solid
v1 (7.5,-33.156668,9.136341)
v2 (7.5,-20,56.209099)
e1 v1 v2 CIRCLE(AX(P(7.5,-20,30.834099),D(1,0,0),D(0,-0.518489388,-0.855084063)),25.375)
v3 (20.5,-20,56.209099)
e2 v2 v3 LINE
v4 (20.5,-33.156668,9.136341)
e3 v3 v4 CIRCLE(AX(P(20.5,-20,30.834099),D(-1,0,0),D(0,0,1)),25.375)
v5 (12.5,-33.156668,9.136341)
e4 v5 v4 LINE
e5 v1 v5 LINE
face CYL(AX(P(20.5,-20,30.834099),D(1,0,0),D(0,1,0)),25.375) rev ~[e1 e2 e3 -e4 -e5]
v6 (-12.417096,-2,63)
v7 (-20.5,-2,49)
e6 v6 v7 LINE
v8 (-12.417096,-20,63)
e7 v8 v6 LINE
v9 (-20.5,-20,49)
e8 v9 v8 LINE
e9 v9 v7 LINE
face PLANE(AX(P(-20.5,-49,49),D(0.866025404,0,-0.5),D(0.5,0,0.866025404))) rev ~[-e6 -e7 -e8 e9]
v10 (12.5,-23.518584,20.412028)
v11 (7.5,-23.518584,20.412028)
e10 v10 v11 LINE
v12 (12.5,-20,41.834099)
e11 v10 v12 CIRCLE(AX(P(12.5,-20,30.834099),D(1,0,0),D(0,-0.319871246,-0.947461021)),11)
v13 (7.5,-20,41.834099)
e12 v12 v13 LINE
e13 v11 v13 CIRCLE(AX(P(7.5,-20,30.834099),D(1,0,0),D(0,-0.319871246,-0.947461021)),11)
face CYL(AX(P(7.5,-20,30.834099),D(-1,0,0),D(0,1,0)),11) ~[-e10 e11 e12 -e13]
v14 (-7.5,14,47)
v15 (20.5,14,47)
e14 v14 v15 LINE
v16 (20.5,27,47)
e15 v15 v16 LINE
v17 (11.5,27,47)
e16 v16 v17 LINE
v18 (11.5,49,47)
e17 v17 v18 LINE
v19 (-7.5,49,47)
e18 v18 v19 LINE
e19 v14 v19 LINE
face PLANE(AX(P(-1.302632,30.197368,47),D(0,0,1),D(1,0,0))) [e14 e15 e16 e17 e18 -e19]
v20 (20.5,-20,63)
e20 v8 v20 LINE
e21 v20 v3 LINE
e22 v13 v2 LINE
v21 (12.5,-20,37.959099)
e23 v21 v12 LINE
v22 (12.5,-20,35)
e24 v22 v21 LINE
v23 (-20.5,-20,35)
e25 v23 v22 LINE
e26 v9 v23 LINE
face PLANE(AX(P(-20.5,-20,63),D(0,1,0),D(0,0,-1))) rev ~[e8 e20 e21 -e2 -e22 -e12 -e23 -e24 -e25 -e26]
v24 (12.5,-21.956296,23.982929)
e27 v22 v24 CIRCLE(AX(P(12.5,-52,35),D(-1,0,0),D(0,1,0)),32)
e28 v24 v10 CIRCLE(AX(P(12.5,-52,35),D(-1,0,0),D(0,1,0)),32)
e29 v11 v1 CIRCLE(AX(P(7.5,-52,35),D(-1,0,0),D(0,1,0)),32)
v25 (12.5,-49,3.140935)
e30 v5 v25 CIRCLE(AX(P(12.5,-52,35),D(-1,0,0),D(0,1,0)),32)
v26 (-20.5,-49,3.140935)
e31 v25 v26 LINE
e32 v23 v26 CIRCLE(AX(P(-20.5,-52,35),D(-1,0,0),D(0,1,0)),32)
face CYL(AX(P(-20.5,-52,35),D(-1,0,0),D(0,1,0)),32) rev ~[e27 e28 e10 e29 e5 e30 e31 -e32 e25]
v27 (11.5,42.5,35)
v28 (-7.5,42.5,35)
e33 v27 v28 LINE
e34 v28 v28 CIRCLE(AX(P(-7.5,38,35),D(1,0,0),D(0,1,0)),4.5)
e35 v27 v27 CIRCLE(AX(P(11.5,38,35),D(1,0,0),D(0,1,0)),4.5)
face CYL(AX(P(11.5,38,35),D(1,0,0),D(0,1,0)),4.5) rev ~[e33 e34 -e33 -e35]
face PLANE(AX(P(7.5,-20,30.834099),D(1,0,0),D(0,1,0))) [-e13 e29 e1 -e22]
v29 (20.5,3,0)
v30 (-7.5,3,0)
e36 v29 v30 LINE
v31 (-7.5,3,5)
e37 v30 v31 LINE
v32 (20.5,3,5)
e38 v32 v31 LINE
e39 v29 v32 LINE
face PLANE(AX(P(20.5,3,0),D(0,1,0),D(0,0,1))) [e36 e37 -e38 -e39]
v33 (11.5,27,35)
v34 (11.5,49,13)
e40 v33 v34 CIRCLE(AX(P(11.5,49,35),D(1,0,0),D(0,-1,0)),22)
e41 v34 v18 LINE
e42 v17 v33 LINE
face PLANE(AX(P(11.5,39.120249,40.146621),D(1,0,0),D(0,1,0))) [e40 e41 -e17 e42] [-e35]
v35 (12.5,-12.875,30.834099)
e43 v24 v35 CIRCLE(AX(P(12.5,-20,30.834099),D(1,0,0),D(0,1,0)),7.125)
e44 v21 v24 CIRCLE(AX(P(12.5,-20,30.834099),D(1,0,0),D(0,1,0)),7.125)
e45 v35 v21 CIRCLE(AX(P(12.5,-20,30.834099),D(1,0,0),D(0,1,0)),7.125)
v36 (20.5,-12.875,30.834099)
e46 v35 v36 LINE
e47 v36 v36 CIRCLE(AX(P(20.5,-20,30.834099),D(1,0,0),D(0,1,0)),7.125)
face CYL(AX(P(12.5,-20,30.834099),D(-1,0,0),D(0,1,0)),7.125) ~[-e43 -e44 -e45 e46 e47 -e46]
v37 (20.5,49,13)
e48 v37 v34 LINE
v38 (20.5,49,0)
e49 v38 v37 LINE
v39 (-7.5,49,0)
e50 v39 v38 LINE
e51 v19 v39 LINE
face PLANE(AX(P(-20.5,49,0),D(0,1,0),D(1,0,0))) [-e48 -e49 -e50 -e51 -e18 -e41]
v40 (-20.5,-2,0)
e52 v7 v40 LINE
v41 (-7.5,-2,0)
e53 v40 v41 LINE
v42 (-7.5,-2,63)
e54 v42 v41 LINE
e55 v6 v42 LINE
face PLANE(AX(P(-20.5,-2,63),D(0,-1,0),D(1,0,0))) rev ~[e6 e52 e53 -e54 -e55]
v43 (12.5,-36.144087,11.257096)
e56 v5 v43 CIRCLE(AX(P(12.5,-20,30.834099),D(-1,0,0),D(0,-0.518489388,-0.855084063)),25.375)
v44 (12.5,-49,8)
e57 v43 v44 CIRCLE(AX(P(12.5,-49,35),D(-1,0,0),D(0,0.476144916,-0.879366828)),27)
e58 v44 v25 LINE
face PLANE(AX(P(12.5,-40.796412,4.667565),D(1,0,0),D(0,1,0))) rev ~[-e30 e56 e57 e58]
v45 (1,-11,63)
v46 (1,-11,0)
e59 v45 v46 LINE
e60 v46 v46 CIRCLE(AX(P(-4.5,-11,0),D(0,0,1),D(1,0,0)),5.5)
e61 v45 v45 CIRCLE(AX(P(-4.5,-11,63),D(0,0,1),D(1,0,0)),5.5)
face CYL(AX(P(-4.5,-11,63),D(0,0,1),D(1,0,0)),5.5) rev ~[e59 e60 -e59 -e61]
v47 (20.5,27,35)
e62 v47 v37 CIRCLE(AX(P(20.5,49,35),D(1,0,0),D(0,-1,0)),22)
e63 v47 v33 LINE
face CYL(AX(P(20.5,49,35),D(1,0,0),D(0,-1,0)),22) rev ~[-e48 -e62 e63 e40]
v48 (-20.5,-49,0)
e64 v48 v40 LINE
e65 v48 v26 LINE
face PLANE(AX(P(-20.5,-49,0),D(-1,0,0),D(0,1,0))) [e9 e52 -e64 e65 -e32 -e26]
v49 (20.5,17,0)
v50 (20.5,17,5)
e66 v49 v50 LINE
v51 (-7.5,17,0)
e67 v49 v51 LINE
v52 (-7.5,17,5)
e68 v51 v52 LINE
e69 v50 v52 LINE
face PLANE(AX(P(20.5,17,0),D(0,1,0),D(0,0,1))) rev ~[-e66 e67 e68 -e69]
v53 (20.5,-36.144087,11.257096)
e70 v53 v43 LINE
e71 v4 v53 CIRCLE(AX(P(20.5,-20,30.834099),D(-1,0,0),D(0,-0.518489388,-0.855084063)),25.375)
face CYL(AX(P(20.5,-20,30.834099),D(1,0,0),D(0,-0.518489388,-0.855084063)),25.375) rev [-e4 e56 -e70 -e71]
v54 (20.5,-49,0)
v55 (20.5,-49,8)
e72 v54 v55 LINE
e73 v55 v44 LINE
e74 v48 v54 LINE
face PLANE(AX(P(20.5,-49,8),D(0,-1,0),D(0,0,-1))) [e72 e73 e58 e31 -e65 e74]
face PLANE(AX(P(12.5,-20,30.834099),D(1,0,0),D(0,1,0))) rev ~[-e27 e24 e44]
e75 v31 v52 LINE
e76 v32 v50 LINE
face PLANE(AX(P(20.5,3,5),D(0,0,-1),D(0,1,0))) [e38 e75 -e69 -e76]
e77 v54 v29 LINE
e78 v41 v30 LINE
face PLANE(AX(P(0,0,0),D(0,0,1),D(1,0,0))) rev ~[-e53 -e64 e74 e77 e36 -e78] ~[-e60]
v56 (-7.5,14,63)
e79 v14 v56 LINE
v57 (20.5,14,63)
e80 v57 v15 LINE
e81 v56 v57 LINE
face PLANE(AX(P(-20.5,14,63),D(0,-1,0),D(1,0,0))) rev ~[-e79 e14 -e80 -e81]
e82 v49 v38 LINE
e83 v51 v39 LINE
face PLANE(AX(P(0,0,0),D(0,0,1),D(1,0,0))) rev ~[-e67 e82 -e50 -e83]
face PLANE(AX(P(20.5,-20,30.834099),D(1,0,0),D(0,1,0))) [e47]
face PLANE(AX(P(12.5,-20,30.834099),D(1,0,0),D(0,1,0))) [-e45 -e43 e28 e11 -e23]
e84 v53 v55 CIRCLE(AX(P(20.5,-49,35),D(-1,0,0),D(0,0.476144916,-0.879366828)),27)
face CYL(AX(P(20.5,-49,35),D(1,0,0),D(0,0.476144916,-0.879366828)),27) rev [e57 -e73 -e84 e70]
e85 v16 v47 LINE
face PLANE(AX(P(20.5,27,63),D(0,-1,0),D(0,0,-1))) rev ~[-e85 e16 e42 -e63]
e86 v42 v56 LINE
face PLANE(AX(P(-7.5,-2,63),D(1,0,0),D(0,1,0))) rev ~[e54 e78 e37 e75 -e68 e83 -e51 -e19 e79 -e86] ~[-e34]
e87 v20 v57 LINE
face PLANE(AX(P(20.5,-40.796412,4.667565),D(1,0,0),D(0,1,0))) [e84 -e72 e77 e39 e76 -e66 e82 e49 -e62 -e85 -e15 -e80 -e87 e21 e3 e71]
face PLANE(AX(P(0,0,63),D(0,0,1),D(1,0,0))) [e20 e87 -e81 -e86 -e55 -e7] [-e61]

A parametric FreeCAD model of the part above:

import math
import FreeCAD as App
import Part
import Sketcher
Q = App.Units.Quantity


def add_polygon(sketch, points):
    """Adds a closed chain of lines whose ends are joined by coincident constraints."""
    first, n = sketch.GeometryCount, len(points)
    for a, b in zip(points, points[1:] + points[:1]):
        sketch.addGeometry(Part.LineSegment(App.Vector(*a, 0), App.Vector(*b, 0)), False)
    for i in range(n):
        sketch.addConstraint(Sketcher.Constraint("Coincident", first + i, 2, first + (i + 1) % n, 1))

doc = App.newDocument("Part")
body = doc.addObject("PartDesign::Body", "Body")

# Sketch on XY plane
sketch1 = doc.addObject("Sketcher::SketchObject", "Sketch")
body.addObject(sketch1)
sketch1.AttachmentSupport = (doc.XY_Plane, [""])
sketch1.MapMode = "FlatFace"
add_polygon(sketch1, [(-20, 49), (-20, -49), (20, -49), (20, 49)])  # lines 0-3
sketch1.addConstraint(Sketcher.Constraint("Vertical", 0))
sketch1.addConstraint(Sketcher.Constraint("Horizontal", 1))
sketch1.addConstraint(Sketcher.Constraint("Vertical", 2))
sketch1.addConstraint(Sketcher.Constraint("Horizontal", 3))
sketch1.addConstraint(Sketcher.Constraint("Symmetric", 0, 2, 2, 2, -1, 1))
sketch1.addConstraint(Sketcher.Constraint("DistanceX", 1, 1, 1, 2, Q("41 mm")))
sketch1.addConstraint(Sketcher.Constraint("DistanceY", 0, 2, 0, 1, Q("98 mm")))
pad1 = doc.addObject("PartDesign::Pad", "Pad")
body.addObject(pad1)
pad1.Profile = sketch1
pad1.Length = 63

# Sketch on YZ plane
sketch2 = doc.addObject("Sketcher::SketchObject", "Sketch001")
body.addObject(sketch2)
sketch2.AttachmentSupport = (doc.YZ_Plane, [""])
sketch2.MapMode = "FlatFace"
sketch2.AttachmentOffset = App.Placement(App.Vector(0, 0, 20.5), App.Rotation())
sketch2.addGeometry(Part.LineSegment(App.Vector(27, 63, 0), App.Vector(27, 35, 0)), False)
sketch2.addGeometry(Part.ArcOfCircle(Part.Circle(App.Vector(49, 35, 0), App.Vector(0, 0, 1), 22), math.radians(180), math.radians(270)), False)
sketch2.addGeometry(Part.LineSegment(App.Vector(49, 13, 0), App.Vector(49, 63, 0)), False)
sketch2.addGeometry(Part.LineSegment(App.Vector(49, 63, 0), App.Vector(27, 63, 0)), False)
sketch2.addConstraint(Sketcher.Constraint("Tangent", 0, 2, 1, 1))
sketch2.addConstraint(Sketcher.Constraint("Coincident", 1, 2, 2, 1))
sketch2.addConstraint(Sketcher.Constraint("Coincident", 2, 2, 3, 1))
sketch2.addConstraint(Sketcher.Constraint("Coincident", 3, 2, 0, 1))
sketch2.addConstraint(Sketcher.Constraint("Vertical", 0))
sketch2.addConstraint(Sketcher.Constraint("Vertical", 2))
sketch2.addConstraint(Sketcher.Constraint("Horizontal", 3))
sketch2.addConstraint(Sketcher.Constraint("Radius", 1, Q("22 mm")))
sketch2.addConstraint(Sketcher.Constraint("DistanceX", 3, 2, 3, 1, Q("22 mm")))
sketch2.addConstraint(Sketcher.Constraint("DistanceY", 0, 2, 0, 1, Q("28 mm")))
sketch2.addConstraint(Sketcher.Constraint("DistanceX", -1, 1, 1, 3, Q("49 mm")))
sketch2.addConstraint(Sketcher.Constraint("DistanceY", -1, 1, 1, 3, Q("35 mm")))
pocket1 = doc.addObject("PartDesign::Pocket", "Pocket")
body.addObject(pocket1)
pocket1.Profile = sketch2
pocket1.Length = 9

# Sketch on XY plane
sketch3 = doc.addObject("Sketcher::SketchObject", "Sketch002")
body.addObject(sketch3)
sketch3.AttachmentSupport = (doc.XY_Plane, [""])
sketch3.MapMode = "FlatFace"
sketch3.AttachmentOffset = App.Placement(App.Vector(0, 0, 63), App.Rotation())
add_polygon(sketch3, [(12, 49), (-20, 49), (-20, 14), (20, 14), (20, 27), (12, 27)])  # lines 0-5
sketch3.addConstraint(Sketcher.Constraint("Horizontal", 0))
sketch3.addConstraint(Sketcher.Constraint("Vertical", 1))
sketch3.addConstraint(Sketcher.Constraint("Horizontal", 2))
sketch3.addConstraint(Sketcher.Constraint("Vertical", 3))
sketch3.addConstraint(Sketcher.Constraint("Horizontal", 4))
sketch3.addConstraint(Sketcher.Constraint("Vertical", 5))
sketch3.addConstraint(Sketcher.Constraint("DistanceX", 0, 2, 0, 1, Q("32 mm")))
sketch3.addConstraint(Sketcher.Constraint("DistanceX", 2, 1, 2, 2, Q("41 mm")))
sketch3.addConstraint(Sketcher.Constraint("DistanceY", 1, 2, 1, 1, Q("35 mm")))
sketch3.addConstraint(Sketcher.Constraint("DistanceY", 3, 1, 3, 2, Q("13 mm")))
sketch3.addConstraint(Sketcher.Constraint("DistanceY", -1, 1, 0, 2, Q("49 mm")))
sketch3.addConstraint(Sketcher.Constraint("DistanceX", 0, 2, -1, 1, Q("20.5 mm")))
pocket2 = doc.addObject("PartDesign::Pocket", "Pocket001")
body.addObject(pocket2)
pocket2.Profile = sketch3
pocket2.Length = 16

# Sketch on XZ plane
sketch4 = doc.addObject("Sketcher::SketchObject", "Sketch003")
body.addObject(sketch4)
sketch4.AttachmentSupport = (doc.XZ_Plane, [""])
sketch4.MapMode = "FlatFace"
sketch4.AttachmentOffset = App.Placement(App.Vector(0, 0, 49), App.Rotation())
add_polygon(sketch4, [(-20, 63), (-20, 49), (-12, 63)])  # lines 0-2
sketch4.addConstraint(Sketcher.Constraint("Vertical", 0))
sketch4.addConstraint(Sketcher.Constraint("Horizontal", 2))
sketch4.addConstraint(Sketcher.Constraint("DistanceY", 0, 2, 0, 1, Q("14 mm")))
sketch4.addConstraint(Sketcher.Constraint("Angle", 1, Q("60 deg")))
sketch4.addConstraint(Sketcher.Constraint("DistanceY", -1, 1, 0, 2, Q("49 mm")))
sketch4.addConstraint(Sketcher.Constraint("DistanceX", 0, 2, -1, 1, Q("20.5 mm")))
pocket3 = doc.addObject("PartDesign::Pocket", "Pocket002")
body.addObject(pocket3)
pocket3.Profile = sketch4
pocket3.Type = "ThroughAll"

# Sketch on XY plane
sketch5 = doc.addObject("Sketcher::SketchObject", "Sketch004")
body.addObject(sketch5)
sketch5.AttachmentSupport = (doc.XY_Plane, [""])
sketch5.MapMode = "FlatFace"
sketch5.AttachmentOffset = App.Placement(App.Vector(0, 0, 63), App.Rotation())
add_polygon(sketch5, [(-20, 49), (-20, -2), (-8, -2), (-8, 49)])  # lines 0-3
sketch5.addConstraint(Sketcher.Constraint("Vertical", 0))
sketch5.addConstraint(Sketcher.Constraint("Horizontal", 1))
sketch5.addConstraint(Sketcher.Constraint("Vertical", 2))
sketch5.addConstraint(Sketcher.Constraint("Horizontal", 3))
sketch5.addConstraint(Sketcher.Constraint("DistanceX", 1, 1, 1, 2, Q("13 mm")))
sketch5.addConstraint(Sketcher.Constraint("DistanceY", 0, 2, 0, 1, Q("51 mm")))
sketch5.addConstraint(Sketcher.Constraint("DistanceY", 0, 2, -1, 1, Q("2 mm")))
sketch5.addConstraint(Sketcher.Constraint("DistanceX", 0, 2, -1, 1, Q("20.5 mm")))
pocket4 = doc.addObject("PartDesign::Pocket", "Pocket003")
body.addObject(pocket4)
pocket4.Profile = sketch5
pocket4.Type = "ThroughAll"

# Sketch on YZ plane
sketch6 = doc.addObject("Sketcher::SketchObject", "Sketch005")
body.addObject(sketch6)
sketch6.AttachmentSupport = (doc.YZ_Plane, [""])
sketch6.MapMode = "FlatFace"
sketch6.AttachmentOffset = App.Placement(App.Vector(0, 0, 20.5), App.Rotation())
sketch6.addGeometry(Part.Circle(App.Vector(-20, 31, 0), App.Vector(0, 0, 1), 25), False)
sketch6.addConstraint(Sketcher.Constraint("Diameter", 0, Q("50.75 mm")))
sketch6.addConstraint(Sketcher.Constraint("DistanceX", 0, 3, -1, 1, Q("20 mm")))
sketch6.addConstraint(Sketcher.Constraint("DistanceY", -1, 1, 0, 3, Q("30.834099 mm")))
pocket5 = doc.addObject("PartDesign::Pocket", "Pocket004")
body.addObject(pocket5)
pocket5.Profile = sketch6
pocket5.Length = 13

# Sketch on YZ plane
sketch7 = doc.addObject("Sketcher::SketchObject", "Sketch006")
body.addObject(sketch7)
sketch7.AttachmentSupport = (doc.YZ_Plane, [""])
sketch7.MapMode = "FlatFace"
sketch7.AttachmentOffset = App.Placement(App.Vector(0, 0, 7.5), App.Rotation())
sketch7.addGeometry(Part.Circle(App.Vector(-20, 31, 0), App.Vector(0, 0, 1), 11), False)
sketch7.addConstraint(Sketcher.Constraint("Diameter", 0, Q("22 mm")))
sketch7.addConstraint(Sketcher.Constraint("DistanceX", 0, 3, -1, 1, Q("20 mm")))
sketch7.addConstraint(Sketcher.Constraint("DistanceY", -1, 1, 0, 3, Q("30.834099 mm")))
pad2 = doc.addObject("PartDesign::Pad", "Pad001")
body.addObject(pad2)
pad2.Profile = sketch7
pad2.Length = 5

# Sketch on YZ plane
sketch8 = doc.addObject("Sketcher::SketchObject", "Sketch007")
body.addObject(sketch8)
sketch8.AttachmentSupport = (doc.YZ_Plane, [""])
sketch8.MapMode = "FlatFace"
sketch8.AttachmentOffset = App.Placement(App.Vector(0, 0, -20.5), App.Rotation())
sketch8.addGeometry(Part.LineSegment(App.Vector(-20, 63, 0), App.Vector(-20, 35, 0)), False)
sketch8.addGeometry(Part.ArcOfCircle(Part.Circle(App.Vector(-52, 35, 0), App.Vector(0, 0, 1), 32), math.radians(119), math.radians(360)), False)
sketch8.addGeometry(Part.LineSegment(App.Vector(-67, 63, 0), App.Vector(-20, 63, 0)), False)
sketch8.addConstraint(Sketcher.Constraint("Tangent", 0, 2, 1, 2))
sketch8.addConstraint(Sketcher.Constraint("Coincident", 1, 1, 2, 1))
sketch8.addConstraint(Sketcher.Constraint("Coincident", 2, 2, 0, 1))
sketch8.addConstraint(Sketcher.Constraint("Vertical", 0))
sketch8.addConstraint(Sketcher.Constraint("Horizontal", 2))
sketch8.addConstraint(Sketcher.Constraint("Radius", 1, Q("32 mm")))
sketch8.addConstraint(Sketcher.Constraint("DistanceY", 0, 2, 0, 1, Q("28 mm")))
sketch8.addConstraint(Sketcher.Constraint("DistanceX", 1, 3, -1, 1, Q("52 mm")))
sketch8.addConstraint(Sketcher.Constraint("DistanceY", -1, 1, 1, 3, Q("35 mm")))
pocket6 = doc.addObject("PartDesign::Pocket", "Pocket005")
body.addObject(pocket6)
pocket6.Profile = sketch8
pocket6.Type = "ThroughAll"
pocket6.Reversed = True

# Sketch on YZ plane
sketch9 = doc.addObject("Sketcher::SketchObject", "Sketch008")
body.addObject(sketch9)
sketch9.AttachmentSupport = (doc.YZ_Plane, [""])
sketch9.MapMode = "FlatFace"
sketch9.AttachmentOffset = App.Placement(App.Vector(0, 0, 12.5), App.Rotation())
sketch9.addGeometry(Part.Circle(App.Vector(-20, 31, 0), App.Vector(0, 0, 1), 7), False)
sketch9.addConstraint(Sketcher.Constraint("Diameter", 0, Q("14.25 mm")))
sketch9.addConstraint(Sketcher.Constraint("DistanceX", 0, 3, -1, 1, Q("20 mm")))
sketch9.addConstraint(Sketcher.Constraint("DistanceY", -1, 1, 0, 3, Q("30.834099 mm")))
pad3 = doc.addObject("PartDesign::Pad", "Pad002")
body.addObject(pad3)
pad3.Profile = sketch9
pad3.Length = 8

# Sketch on YZ plane
sketch10 = doc.addObject("Sketcher::SketchObject", "Sketch009")
body.addObject(sketch10)
sketch10.AttachmentSupport = (doc.YZ_Plane, [""])
sketch10.MapMode = "FlatFace"
sketch10.AttachmentOffset = App.Placement(App.Vector(0, 0, 20.5), App.Rotation())
sketch10.addGeometry(Part.ArcOfCircle(Part.Circle(App.Vector(-49, 35, 0), App.Vector(0, 0, 1), 27), math.radians(-90), math.radians(-62)), False)
sketch10.addGeometry(Part.LineSegment(App.Vector(-49, 8, 0), App.Vector(-49, 0, 0)), False)
sketch10.addGeometry(Part.LineSegment(App.Vector(-49, 0, 0), App.Vector(-33.2, 0, 0)), False)
sketch10.addGeometry(Part.LineSegment(App.Vector(-33.2, 0, 0), App.Vector(-33.2, 9.1, 0)), False)
sketch10.addGeometry(Part.ArcOfCircle(Part.Circle(App.Vector(-20, 30.8, 0), App.Vector(0, 0, 1), 25.4), math.radians(-129.51), math.radians(-121.23)), False)
sketch10.addConstraint(Sketcher.Constraint("Coincident", 0, 1, 1, 1))
sketch10.addConstraint(Sketcher.Constraint("Coincident", 1, 2, 2, 1))
sketch10.addConstraint(Sketcher.Constraint("Coincident", 2, 2, 3, 1))
sketch10.addConstraint(Sketcher.Constraint("Coincident", 3, 2, 4, 2))
sketch10.addConstraint(Sketcher.Constraint("Coincident", 4, 1, 0, 2))
sketch10.addConstraint(Sketcher.Constraint("Vertical", 1))
sketch10.addConstraint(Sketcher.Constraint("Horizontal", 2))
sketch10.addConstraint(Sketcher.Constraint("Vertical", 3))
sketch10.addConstraint(Sketcher.Constraint("PointOnObject", 1, 2, -1))
sketch10.addConstraint(Sketcher.Constraint("Radius", 0, Q("27 mm")))
sketch10.addConstraint(Sketcher.Constraint("DistanceY", 1, 2, 1, 1, Q("8 mm")))
sketch10.addConstraint(Sketcher.Constraint("DistanceX", 0, 3, -1, 1, Q("49 mm")))
sketch10.addConstraint(Sketcher.Constraint("DistanceX", 4, 3, -1, 1, Q("20 mm")))
sketch10.addConstraint(Sketcher.Constraint("DistanceX", 0, 1, -1, 1, Q("49 mm")))
sketch10.addConstraint(Sketcher.Constraint("Radius", 4, Q("25.375 mm")))
sketch10.addConstraint(Sketcher.Constraint("DistanceX", 2, 1, 2, 2, Q("15.843332 mm")))
sketch10.addConstraint(Sketcher.Constraint("DistanceY", 3, 1, 3, 2, Q("9.136341 mm")))
pad4 = doc.addObject("PartDesign::Pad", "Pad003")
body.addObject(pad4)
pad4.Profile = sketch10
pad4.Length = 8
pad4.Reversed = True

# Sketch on YZ plane
sketch11 = doc.addObject("Sketcher::SketchObject", "Sketch010")
body.addObject(sketch11)
sketch11.AttachmentSupport = (doc.YZ_Plane, [""])
sketch11.MapMode = "FlatFace"
sketch11.AttachmentOffset = App.Placement(App.Vector(0, 0, 20.5), App.Rotation())
add_polygon(sketch11, [(3, 5), (3, 0), (17, 0), (17, 5)])  # lines 0-3
sketch11.addConstraint(Sketcher.Constraint("Vertical", 0))
sketch11.addConstraint(Sketcher.Constraint("Horizontal", 1))
sketch11.addConstraint(Sketcher.Constraint("Vertical", 2))
sketch11.addConstraint(Sketcher.Constraint("Horizontal", 3))
sketch11.addConstraint(Sketcher.Constraint("PointOnObject", 0, 2, -1))
sketch11.addConstraint(Sketcher.Constraint("DistanceX", 1, 1, 1, 2, Q("14 mm")))
sketch11.addConstraint(Sketcher.Constraint("DistanceY", 0, 2, 0, 1, Q("5 mm")))
sketch11.addConstraint(Sketcher.Constraint("DistanceX", -1, 1, 0, 2, Q("3 mm")))
pocket7 = doc.addObject("PartDesign::Pocket", "Pocket006")
body.addObject(pocket7)
pocket7.Profile = sketch11
pocket7.Type = "ThroughAll"

# Sketch on YZ plane
sketch12 = doc.addObject("Sketcher::SketchObject", "Sketch011")
body.addObject(sketch12)
sketch12.AttachmentSupport = (doc.YZ_Plane, [""])
sketch12.MapMode = "FlatFace"
sketch12.AttachmentOffset = App.Placement(App.Vector(0, 0, 11.5), App.Rotation())
sketch12.addGeometry(Part.Circle(App.Vector(38, 35, 0), App.Vector(0, 0, 1), 4.5), False)
sketch12.addConstraint(Sketcher.Constraint("Diameter", 0, Q("9 mm")))
sketch12.addConstraint(Sketcher.Constraint("DistanceX", -1, 1, 0, 3, Q("38 mm")))
sketch12.addConstraint(Sketcher.Constraint("DistanceY", -1, 1, 0, 3, Q("35 mm")))
pocket8 = doc.addObject("PartDesign::Pocket", "Pocket007")
body.addObject(pocket8)
pocket8.Profile = sketch12
pocket8.Type = "ThroughAll"

# Sketch on XY plane
sketch13 = doc.addObject("Sketcher::SketchObject", "Sketch012")
body.addObject(sketch13)
sketch13.AttachmentSupport = (doc.XY_Plane, [""])
sketch13.MapMode = "FlatFace"
sketch13.AttachmentOffset = App.Placement(App.Vector(0, 0, 63), App.Rotation())
sketch13.addGeometry(Part.Circle(App.Vector(-4, -11, 0), App.Vector(0, 0, 1), 6), False)
sketch13.addConstraint(Sketcher.Constraint("Diameter", 0, Q("11 mm")))
sketch13.addConstraint(Sketcher.Constraint("DistanceY", 0, 3, -1, 1, Q("11 mm")))
sketch13.addConstraint(Sketcher.Constraint("DistanceX", 0, 3, -1, 1, Q("4.5 mm")))
pocket9 = doc.addObject("PartDesign::Pocket", "Pocket008")
body.addObject(pocket9)
pocket9.Profile = sketch13
pocket9.Type = "ThroughAll"

doc.recompute()
